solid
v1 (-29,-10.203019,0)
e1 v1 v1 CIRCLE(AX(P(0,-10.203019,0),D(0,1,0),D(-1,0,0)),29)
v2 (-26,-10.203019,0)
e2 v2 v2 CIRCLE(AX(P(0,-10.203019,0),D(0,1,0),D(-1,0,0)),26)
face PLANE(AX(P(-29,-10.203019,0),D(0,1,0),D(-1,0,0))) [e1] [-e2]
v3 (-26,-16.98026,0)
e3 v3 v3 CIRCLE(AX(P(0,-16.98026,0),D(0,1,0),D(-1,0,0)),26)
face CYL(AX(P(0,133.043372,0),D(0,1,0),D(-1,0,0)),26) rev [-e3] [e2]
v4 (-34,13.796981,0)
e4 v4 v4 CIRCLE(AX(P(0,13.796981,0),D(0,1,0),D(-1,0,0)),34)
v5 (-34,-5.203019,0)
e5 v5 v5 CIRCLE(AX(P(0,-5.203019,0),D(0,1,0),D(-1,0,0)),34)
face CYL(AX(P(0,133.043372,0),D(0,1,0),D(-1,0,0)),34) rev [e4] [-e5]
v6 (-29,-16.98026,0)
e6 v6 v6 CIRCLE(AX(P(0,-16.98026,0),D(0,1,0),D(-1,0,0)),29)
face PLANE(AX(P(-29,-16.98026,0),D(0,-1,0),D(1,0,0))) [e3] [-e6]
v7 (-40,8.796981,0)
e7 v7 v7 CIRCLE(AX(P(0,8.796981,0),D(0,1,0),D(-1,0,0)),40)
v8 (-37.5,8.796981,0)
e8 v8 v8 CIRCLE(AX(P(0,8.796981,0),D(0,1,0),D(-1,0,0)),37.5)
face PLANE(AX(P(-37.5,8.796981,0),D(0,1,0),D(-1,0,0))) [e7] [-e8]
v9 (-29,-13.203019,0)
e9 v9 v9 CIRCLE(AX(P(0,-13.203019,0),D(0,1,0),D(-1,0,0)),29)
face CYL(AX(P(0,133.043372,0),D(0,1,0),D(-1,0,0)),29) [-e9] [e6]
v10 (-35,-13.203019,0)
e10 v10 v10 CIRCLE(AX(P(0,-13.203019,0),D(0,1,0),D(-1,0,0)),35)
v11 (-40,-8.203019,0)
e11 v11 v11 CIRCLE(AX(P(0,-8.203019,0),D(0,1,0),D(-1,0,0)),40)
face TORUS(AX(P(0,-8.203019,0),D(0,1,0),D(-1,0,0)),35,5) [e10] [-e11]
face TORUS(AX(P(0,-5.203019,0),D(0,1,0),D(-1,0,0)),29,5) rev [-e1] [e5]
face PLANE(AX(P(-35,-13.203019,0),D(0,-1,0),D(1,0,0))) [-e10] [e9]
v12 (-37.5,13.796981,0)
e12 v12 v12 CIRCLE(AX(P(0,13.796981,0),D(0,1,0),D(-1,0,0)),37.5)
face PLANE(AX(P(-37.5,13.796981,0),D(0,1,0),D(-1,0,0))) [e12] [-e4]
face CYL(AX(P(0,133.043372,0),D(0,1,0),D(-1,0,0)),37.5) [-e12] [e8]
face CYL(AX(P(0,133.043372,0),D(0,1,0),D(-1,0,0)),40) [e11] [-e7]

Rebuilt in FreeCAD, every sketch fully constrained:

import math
import FreeCAD as App
import Part
import Sketcher

V = App.Vector

doc = App.newDocument("Part")
body = doc.addObject("PartDesign::Body", "Body")

# Sketch on XY plane
sketch1 = doc.addObject("Sketcher::SketchObject", "Sketch")
body.addObject(sketch1)
sketch1.AttachmentSupport = (doc.XY_Plane, [""])
sketch1.MapMode = "FlatFace"
sketch1.addGeometry([
    Part.LineSegment(V(-40, 8.8, 0), V(-40, -8.2, 0)),  # 0
    Part.ArcOfCircle(Part.Circle(V(-35, -8.2, 0), V(0, 0, 1), 5), math.radians(180), math.radians(270)),  # 1
    Part.LineSegment(V(-35, -13.2, 0), V(-29, -13.2, 0)),  # 2
    Part.LineSegment(V(-29, -13.2, 0), V(-29, -17, 0)),  # 3
    Part.LineSegment(V(-29, -17, 0), V(-26, -17, 0)),  # 4
    Part.LineSegment(V(-26, -17, 0), V(-26, -10.2, 0)),  # 5
    Part.LineSegment(V(-26, -10.2, 0), V(-29, -10.2, 0)),  # 6
    Part.ArcOfCircle(Part.Circle(V(-29, -5.2, 0), V(0, 0, 1), 5), math.radians(180), math.radians(270)),  # 7
    Part.LineSegment(V(-34, -5.2, 0), V(-34, 13.8, 0)),  # 8
    Part.LineSegment(V(-34, 13.8, 0), V(-37.5, 13.8, 0)),  # 9
    Part.LineSegment(V(-37.5, 13.8, 0), V(-37.5, 8.8, 0)),  # 10
    Part.LineSegment(V(-37.5, 8.8, 0), V(-40, 8.8, 0)),  # 11
], False)
sketch1.addConstraint([
    Sketcher.Constraint("Tangent", 0, 2, 1, 1),
    Sketcher.Constraint("Tangent", 1, 2, 2, 1),
    Sketcher.Constraint("Coincident", 2, 2, 3, 1),
    Sketcher.Constraint("Coincident", 3, 2, 4, 1),
    Sketcher.Constraint("Coincident", 4, 2, 5, 1),
    Sketcher.Constraint("Coincident", 5, 2, 6, 1),
    Sketcher.Constraint("Tangent", 6, 2, 7, 2),
    Sketcher.Constraint("Tangent", 7, 1, 8, 1),
    Sketcher.Constraint("Coincident", 8, 2, 9, 1),
    Sketcher.Constraint("Coincident", 9, 2, 10, 1),
    Sketcher.Constraint("Coincident", 10, 2, 11, 1),
    Sketcher.Constraint("Coincident", 11, 2, 0, 1),
    Sketcher.Constraint("Vertical", 0),
    Sketcher.Constraint("Horizontal", 2),
    Sketcher.Constraint("Vertical", 3),
    Sketcher.Constraint("Horizontal", 4),
    Sketcher.Constraint("Vertical", 5),
    Sketcher.Constraint("Horizontal", 6),
    Sketcher.Constraint("Vertical", 8),
    Sketcher.Constraint("Horizontal", 9),
    Sketcher.Constraint("Vertical", 10),
    Sketcher.Constraint("Horizontal", 11),
    Sketcher.Constraint("Equal", 1, 7),
    Sketcher.Constraint("Vertical", 7, 3, 2, 2),
    Sketcher.Constraint("Radius", 1, 5.0),
    Sketcher.Constraint("DistanceX", 2, 1, 2, 2, 6.0),
    Sketcher.Constraint("DistanceX", 4, 1, 4, 2, 3.0),
    Sketcher.Constraint("DistanceY", 0, 2, 0, 1, 17.0),
    Sketcher.Constraint("DistanceY", 8, 1, 8, 2, 19.0),
    Sketcher.Constraint("DistanceY", 10, 2, 10, 1, 5.0),
    Sketcher.Constraint("DistanceX", 9, 2, 9, 1, 3.5),
    Sketcher.Constraint("DistanceX", 1, 3, -1, 1, 35.0),
    Sketcher.Constraint("DistanceY", 3, 2, 3, 1, 3.777241),
    Sketcher.Constraint("DistanceY", 1, 3, -1, 1, 8.203019),
])
revolution = doc.addObject("PartDesign::Revolution", "Revolution")
body.addObject(revolution)
revolution.Profile = sketch1
revolution.ReferenceAxis = (sketch1, ["V_Axis"])
revolution.Angle = 360

doc.recompute()
